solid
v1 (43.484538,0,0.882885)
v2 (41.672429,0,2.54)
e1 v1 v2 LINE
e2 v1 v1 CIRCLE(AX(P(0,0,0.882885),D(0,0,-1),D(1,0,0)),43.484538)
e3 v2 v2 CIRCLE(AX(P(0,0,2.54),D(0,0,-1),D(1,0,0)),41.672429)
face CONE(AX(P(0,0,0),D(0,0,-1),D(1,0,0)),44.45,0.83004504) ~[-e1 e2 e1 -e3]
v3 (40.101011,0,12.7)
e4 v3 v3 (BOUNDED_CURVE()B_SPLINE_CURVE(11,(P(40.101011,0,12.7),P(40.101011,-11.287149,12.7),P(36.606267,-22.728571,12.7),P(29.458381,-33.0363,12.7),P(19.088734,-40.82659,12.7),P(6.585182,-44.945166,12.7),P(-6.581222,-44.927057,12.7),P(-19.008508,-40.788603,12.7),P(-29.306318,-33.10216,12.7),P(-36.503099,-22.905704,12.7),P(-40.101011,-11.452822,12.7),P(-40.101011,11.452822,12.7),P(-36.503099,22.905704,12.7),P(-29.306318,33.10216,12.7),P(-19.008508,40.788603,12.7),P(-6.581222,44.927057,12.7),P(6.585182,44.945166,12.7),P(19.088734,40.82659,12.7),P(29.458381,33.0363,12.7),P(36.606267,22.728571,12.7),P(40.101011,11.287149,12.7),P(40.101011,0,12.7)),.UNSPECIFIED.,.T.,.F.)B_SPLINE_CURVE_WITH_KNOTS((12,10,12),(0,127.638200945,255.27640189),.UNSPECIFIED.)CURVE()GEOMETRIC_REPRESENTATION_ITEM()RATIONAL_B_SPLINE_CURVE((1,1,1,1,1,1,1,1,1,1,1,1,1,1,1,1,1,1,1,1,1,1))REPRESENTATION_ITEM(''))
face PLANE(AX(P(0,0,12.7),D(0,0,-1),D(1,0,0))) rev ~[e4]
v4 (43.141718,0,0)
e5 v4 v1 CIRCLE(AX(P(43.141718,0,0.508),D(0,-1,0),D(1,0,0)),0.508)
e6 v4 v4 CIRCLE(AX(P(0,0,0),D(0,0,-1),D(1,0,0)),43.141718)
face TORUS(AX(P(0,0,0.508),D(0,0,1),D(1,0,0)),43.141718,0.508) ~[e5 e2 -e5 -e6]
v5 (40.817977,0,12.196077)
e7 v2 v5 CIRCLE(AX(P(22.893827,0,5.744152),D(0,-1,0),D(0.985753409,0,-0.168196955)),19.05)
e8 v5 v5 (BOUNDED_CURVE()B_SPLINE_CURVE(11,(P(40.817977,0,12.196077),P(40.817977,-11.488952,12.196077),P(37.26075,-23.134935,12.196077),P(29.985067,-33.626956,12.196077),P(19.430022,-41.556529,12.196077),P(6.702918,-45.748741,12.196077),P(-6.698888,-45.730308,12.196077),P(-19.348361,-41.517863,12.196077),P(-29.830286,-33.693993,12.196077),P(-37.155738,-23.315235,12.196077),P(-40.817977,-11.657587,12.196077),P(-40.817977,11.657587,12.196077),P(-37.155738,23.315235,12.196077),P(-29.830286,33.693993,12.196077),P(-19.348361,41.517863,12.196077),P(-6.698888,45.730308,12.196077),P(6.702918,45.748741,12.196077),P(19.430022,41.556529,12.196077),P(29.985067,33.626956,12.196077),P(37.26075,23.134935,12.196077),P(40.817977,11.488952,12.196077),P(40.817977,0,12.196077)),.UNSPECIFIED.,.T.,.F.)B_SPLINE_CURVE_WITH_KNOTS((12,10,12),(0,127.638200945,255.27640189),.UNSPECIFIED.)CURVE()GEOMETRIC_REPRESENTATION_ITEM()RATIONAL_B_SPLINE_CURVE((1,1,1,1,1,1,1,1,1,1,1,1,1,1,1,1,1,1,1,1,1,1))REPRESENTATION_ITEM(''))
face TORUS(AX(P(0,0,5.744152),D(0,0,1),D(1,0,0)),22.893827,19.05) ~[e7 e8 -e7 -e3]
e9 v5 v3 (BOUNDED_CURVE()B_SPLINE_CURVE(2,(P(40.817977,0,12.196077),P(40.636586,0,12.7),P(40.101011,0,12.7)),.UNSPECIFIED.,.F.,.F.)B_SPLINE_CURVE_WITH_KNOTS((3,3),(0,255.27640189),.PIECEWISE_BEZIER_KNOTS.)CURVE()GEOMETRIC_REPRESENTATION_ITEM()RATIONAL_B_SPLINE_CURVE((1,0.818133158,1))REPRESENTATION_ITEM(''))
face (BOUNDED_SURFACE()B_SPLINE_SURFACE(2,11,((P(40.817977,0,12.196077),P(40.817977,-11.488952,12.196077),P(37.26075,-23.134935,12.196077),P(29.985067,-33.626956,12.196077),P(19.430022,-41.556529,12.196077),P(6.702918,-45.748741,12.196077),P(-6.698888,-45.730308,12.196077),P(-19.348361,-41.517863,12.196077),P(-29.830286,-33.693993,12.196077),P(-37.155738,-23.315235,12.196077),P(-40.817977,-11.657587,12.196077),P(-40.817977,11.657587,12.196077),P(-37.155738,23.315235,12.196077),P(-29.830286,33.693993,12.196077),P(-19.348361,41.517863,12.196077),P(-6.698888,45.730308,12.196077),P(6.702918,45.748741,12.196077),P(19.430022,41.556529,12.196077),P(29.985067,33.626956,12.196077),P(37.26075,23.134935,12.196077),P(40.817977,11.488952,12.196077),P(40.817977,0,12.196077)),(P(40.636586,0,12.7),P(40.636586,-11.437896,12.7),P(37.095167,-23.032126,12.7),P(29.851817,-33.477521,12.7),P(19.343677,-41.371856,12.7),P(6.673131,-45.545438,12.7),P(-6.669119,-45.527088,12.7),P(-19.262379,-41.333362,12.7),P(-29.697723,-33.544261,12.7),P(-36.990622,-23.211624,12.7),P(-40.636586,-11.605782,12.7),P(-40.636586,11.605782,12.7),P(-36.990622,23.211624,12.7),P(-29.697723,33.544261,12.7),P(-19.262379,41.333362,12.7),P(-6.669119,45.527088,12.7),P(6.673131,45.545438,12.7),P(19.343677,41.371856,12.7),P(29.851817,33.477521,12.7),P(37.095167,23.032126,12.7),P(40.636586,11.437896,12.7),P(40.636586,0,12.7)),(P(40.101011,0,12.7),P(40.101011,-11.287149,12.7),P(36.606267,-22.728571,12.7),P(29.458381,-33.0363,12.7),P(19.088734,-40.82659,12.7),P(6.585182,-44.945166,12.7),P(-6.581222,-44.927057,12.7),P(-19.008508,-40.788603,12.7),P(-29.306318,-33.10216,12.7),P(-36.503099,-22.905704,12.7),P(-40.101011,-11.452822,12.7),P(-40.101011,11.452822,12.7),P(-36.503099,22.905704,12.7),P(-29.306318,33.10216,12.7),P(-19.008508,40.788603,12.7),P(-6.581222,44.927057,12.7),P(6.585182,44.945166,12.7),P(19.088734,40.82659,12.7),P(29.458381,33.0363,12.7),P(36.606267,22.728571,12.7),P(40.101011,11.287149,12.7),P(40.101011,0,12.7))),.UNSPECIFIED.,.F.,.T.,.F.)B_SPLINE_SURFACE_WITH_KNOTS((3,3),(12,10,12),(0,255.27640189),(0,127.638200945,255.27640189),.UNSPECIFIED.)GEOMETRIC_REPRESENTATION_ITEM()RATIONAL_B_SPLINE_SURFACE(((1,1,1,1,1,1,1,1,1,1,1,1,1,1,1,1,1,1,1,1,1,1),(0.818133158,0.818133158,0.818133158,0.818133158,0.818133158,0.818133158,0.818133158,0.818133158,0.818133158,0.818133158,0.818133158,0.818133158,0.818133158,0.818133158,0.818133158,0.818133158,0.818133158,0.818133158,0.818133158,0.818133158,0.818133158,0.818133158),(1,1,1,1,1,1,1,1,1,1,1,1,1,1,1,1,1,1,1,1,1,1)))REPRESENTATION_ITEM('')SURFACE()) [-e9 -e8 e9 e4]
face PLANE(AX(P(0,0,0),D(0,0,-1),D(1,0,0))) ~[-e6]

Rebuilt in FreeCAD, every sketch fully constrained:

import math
import FreeCAD as App
import Part
import Sketcher
Q = App.Units.Quantity


def edges_at(feature, points):
    """Names of the edges that pass closest to the given points."""
    edges = feature.Shape.Edges
    near = lambda p: min(range(len(edges)), key=lambda i: edges[i].distToShape(Part.Vertex(*p))[0])
    return sorted({f"Edge{near(p) + 1}" for p in points})

doc = App.newDocument("Part")
params = doc.addObject("Spreadsheet::Sheet", "Params")
for row, (alias, value) in enumerate([
    ("sketch1_radius", "0.75 in"),
    ("sketch1_height", "0.5 in"),
    ("sketch1_width", "1.75 in"),
    ("revolution_angle", "360 deg"),
    ("fillet_radius", "0.02 in"),
    ("fillet2_radius", "0.03 in"),
], start=1):
    params.set(f"A{row}", alias)
    params.set(f"B{row}", "=" + value)
    params.setAlias(f"B{row}", alias)

body = doc.addObject("PartDesign::Body", "Body")

# Sketch on XZ plane
sketch1 = doc.addObject("Sketcher::SketchObject", "Sketch")
body.addObject(sketch1)
sketch1.AttachmentSupport = (doc.XZ_Plane, [""])
sketch1.MapMode = "FlatFace"
sketch1.addGeometry(Part.LineSegment(App.Vector(40.6, 12.7, 0), App.Vector(0, 12.7, 0)), False)
sketch1.addGeometry(Part.LineSegment(App.Vector(0, 12.7, 0), App.Vector(0, 0, 0)), False)
sketch1.addGeometry(Part.LineSegment(App.Vector(0, 0, 0), App.Vector(44.5, 0, 0)), False)
sketch1.addGeometry(Part.LineSegment(App.Vector(44.5, 0, 0), App.Vector(41.7, 2.5, 0)), False)
sketch1.addGeometry(Part.ArcOfCircle(Part.Circle(App.Vector(22.9, 5.7, 0), App.Vector(0, 0, 1), 19), math.radians(-10), math.radians(21)), False)
sketch1.addConstraint(Sketcher.Constraint("Coincident", 0, 2, 1, 1))
sketch1.addConstraint(Sketcher.Constraint("Coincident", 1, 2, 2, 1))
sketch1.addConstraint(Sketcher.Constraint("Coincident", 2, 2, 3, 1))
sketch1.addConstraint(Sketcher.Constraint("Coincident", 3, 2, 4, 1))
sketch1.addConstraint(Sketcher.Constraint("Coincident", 4, 2, 0, 1))
sketch1.addConstraint(Sketcher.Constraint("Horizontal", 0))
sketch1.addConstraint(Sketcher.Constraint("Vertical", 1))
sketch1.addConstraint(Sketcher.Constraint("Horizontal", 2))
sketch1.addConstraint(Sketcher.Constraint("Coincident", 1, 2, -1, 1))
sketch1.addConstraint(Sketcher.Constraint("Radius", 4, Q("0.75 in")))
sketch1.addConstraint(Sketcher.Constraint("DistanceY", 1, 2, 1, 1, Q("0.5 in")))
sketch1.addConstraint(Sketcher.Constraint("DistanceX", 2, 1, 2, 2, Q("1.75 in")))
sketch1.addConstraint(Sketcher.Constraint("DistanceY", -1, 1, 3, 2, Q("0.1 in")))
sketch1.addConstraint(Sketcher.Constraint("DistanceX", 0, 2, 0, 1, Q("40.628501 mm")))
sketch1.addConstraint(Sketcher.Constraint("Distance", 3, Q("3.763841 mm")))
sketch1.setExpression("Constraints[9]", "Params.sketch1_radius")
sketch1.setExpression("Constraints[10]", "Params.sketch1_height")
sketch1.setExpression("Constraints[11]", "Params.sketch1_width")
revolution = doc.addObject("PartDesign::Revolution", "Revolution")
body.addObject(revolution)
revolution.Profile = sketch1
revolution.ReferenceAxis = (sketch1, ["V_Axis"])
revolution.setExpression("Angle", "Params.revolution_angle")
doc.recompute()

fillet = doc.addObject("PartDesign::Fillet", "Fillet")
body.addObject(fillet)
fillet.Base = (revolution, edges_at(revolution, [(-44.45, 0, 0)]))
fillet.setExpression("Radius", "Params.fillet_radius")
doc.recompute()

fillet2 = doc.addObject("PartDesign::Fillet", "Fillet001")
body.addObject(fillet2)
fillet2.Base = (fillet, edges_at(fillet, [(-40.629, 0, 12.7)]))
fillet2.setExpression("Radius", "Params.fillet2_radius")

doc.recompute()
